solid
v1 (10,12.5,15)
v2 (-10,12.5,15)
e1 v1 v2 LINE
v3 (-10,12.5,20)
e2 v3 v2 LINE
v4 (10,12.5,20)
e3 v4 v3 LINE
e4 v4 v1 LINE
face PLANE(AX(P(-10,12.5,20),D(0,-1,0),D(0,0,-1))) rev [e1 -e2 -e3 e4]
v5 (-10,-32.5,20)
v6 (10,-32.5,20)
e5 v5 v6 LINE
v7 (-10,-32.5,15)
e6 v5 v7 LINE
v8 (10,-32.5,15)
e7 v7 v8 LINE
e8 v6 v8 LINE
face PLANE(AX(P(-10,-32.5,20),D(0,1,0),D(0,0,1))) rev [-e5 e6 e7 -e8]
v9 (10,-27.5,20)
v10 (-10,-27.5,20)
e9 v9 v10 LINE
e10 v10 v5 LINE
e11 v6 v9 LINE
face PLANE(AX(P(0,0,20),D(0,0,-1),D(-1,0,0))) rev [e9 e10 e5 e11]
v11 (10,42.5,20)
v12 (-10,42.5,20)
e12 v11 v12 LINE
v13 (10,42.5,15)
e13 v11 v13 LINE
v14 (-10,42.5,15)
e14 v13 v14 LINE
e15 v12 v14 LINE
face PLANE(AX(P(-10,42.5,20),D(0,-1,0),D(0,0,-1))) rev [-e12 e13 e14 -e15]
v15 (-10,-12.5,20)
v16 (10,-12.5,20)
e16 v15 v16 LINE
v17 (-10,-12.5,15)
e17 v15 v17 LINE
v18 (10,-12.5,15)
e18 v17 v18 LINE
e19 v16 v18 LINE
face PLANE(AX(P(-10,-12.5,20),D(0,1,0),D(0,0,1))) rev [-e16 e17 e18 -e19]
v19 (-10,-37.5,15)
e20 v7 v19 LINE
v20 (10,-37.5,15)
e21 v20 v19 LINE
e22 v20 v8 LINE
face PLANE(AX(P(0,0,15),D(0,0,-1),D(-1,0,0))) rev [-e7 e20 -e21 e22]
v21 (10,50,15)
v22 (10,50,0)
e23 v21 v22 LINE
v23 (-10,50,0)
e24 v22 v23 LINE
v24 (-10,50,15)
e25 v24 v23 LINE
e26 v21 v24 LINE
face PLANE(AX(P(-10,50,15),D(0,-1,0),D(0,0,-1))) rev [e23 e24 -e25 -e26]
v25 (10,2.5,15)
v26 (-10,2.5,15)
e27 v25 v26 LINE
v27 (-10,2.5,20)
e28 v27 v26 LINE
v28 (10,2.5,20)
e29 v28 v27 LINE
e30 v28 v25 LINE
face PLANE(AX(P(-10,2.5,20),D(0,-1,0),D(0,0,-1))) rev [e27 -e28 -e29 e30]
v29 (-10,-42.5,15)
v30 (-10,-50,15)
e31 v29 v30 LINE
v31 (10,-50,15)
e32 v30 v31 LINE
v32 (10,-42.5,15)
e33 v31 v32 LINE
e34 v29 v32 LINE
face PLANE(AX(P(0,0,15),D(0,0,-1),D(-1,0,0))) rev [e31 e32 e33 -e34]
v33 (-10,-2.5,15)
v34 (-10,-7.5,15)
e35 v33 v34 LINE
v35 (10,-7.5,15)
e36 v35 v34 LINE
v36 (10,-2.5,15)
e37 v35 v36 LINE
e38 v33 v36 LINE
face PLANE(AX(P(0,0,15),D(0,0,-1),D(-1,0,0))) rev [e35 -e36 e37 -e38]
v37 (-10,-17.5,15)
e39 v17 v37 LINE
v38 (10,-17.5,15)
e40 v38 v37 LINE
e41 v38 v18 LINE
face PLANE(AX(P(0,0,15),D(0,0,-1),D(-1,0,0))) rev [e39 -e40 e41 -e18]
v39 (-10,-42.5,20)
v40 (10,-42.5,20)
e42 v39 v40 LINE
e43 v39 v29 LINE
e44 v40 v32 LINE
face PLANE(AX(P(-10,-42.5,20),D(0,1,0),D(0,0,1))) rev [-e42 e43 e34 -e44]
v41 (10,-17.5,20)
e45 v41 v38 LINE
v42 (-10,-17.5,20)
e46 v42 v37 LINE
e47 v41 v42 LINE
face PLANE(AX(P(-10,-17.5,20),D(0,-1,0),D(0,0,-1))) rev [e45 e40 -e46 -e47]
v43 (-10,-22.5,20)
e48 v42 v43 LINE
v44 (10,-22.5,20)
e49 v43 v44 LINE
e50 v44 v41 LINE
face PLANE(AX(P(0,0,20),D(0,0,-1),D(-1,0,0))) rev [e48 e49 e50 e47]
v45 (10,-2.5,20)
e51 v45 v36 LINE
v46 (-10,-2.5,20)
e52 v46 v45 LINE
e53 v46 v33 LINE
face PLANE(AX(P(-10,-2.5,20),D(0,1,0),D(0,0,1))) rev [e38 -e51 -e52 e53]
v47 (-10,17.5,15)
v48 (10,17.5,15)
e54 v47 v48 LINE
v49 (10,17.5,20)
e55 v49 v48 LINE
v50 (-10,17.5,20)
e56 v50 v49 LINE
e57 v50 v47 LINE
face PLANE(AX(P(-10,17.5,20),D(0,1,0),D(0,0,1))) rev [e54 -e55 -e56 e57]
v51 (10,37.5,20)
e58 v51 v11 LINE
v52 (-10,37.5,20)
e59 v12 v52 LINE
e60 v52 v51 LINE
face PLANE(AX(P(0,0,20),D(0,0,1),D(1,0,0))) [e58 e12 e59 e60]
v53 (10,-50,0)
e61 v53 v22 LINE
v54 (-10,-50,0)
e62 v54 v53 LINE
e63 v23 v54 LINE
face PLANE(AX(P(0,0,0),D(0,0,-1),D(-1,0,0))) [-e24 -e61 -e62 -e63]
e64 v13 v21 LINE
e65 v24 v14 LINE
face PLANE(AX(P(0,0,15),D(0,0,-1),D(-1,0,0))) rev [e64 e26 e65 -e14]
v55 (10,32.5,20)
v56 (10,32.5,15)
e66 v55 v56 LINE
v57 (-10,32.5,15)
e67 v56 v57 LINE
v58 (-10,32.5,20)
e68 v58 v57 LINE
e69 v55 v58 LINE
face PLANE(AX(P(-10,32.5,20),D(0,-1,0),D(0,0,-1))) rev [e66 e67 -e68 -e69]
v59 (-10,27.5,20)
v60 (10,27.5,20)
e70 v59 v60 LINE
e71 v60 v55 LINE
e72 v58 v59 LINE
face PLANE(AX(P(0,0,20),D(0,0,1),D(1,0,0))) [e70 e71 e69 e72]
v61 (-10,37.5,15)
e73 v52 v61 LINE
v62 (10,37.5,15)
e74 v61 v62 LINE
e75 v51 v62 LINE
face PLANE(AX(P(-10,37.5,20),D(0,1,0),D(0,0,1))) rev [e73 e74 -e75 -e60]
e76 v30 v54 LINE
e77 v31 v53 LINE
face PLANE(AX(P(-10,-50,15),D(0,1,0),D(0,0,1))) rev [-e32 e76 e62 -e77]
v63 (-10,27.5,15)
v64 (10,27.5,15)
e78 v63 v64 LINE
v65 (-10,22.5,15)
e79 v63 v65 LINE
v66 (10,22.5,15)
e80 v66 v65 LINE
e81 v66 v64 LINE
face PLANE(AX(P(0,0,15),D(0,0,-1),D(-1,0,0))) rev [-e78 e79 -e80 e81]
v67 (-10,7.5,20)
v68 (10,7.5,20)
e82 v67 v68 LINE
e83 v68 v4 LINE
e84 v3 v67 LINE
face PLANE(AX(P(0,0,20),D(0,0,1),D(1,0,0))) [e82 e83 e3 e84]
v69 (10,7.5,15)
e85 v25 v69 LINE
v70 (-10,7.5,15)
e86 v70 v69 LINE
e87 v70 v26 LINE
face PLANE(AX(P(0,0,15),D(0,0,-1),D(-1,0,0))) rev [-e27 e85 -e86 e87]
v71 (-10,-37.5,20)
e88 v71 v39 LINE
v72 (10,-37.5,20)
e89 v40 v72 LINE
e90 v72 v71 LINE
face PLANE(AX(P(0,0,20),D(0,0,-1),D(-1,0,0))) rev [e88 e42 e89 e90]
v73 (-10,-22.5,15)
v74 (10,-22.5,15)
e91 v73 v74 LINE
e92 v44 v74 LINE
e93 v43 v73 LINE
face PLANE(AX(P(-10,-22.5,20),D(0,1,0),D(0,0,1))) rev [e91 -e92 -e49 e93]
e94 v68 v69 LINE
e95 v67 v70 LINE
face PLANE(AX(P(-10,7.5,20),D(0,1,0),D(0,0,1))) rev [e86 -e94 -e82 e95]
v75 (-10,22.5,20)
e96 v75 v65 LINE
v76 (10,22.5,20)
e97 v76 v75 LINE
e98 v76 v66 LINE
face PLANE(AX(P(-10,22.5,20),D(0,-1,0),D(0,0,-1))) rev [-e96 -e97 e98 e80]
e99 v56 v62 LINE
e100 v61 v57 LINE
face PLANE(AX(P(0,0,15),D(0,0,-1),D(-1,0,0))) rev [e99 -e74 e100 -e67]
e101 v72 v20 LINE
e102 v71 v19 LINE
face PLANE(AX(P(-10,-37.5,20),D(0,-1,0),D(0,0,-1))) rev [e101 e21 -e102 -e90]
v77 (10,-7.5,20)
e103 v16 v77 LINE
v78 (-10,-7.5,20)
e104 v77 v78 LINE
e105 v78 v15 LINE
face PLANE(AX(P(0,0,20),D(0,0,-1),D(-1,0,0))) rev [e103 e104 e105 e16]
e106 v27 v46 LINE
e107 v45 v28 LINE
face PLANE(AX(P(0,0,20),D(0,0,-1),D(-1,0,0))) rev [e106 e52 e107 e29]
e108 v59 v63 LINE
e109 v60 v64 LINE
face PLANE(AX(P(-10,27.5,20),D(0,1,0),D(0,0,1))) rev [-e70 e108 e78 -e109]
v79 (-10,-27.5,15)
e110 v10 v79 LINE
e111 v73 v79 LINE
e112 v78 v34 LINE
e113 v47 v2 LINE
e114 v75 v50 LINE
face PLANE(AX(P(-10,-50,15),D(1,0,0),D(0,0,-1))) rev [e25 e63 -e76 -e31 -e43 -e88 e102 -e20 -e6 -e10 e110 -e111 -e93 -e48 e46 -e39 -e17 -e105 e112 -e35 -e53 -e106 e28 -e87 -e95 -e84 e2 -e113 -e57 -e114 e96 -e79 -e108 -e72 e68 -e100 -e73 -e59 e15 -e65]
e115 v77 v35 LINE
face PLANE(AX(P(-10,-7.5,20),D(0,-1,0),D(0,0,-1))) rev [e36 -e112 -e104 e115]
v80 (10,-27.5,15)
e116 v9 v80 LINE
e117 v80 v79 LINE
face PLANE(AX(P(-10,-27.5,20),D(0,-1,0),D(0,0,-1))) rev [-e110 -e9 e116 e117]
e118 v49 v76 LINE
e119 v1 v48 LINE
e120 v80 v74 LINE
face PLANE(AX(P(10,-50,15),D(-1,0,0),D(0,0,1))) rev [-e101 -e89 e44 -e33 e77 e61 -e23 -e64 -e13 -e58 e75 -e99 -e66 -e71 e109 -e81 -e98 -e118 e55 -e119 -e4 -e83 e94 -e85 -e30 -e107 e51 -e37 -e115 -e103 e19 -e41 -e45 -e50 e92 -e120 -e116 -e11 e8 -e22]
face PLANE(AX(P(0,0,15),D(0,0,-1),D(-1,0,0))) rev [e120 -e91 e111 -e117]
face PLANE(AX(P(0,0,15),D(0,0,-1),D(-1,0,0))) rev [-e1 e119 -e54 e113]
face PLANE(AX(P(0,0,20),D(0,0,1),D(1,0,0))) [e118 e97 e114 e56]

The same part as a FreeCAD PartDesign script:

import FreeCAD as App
import Part
import Sketcher
from FreeCAD import Vector

doc = App.newDocument("Part")
params = doc.addObject("Spreadsheet::Sheet", "Params")
for row, (alias, value) in enumerate([
    ("sketch1_width", "20 mm"),
    ("sketch1_height", "100 mm"),
    ("pad1_length", "15 mm"),
    ("sketch2_width", "20 mm"),
    ("sketch2_height", "5 mm"),
    ("pad2_length", "5 mm"),
], start=1):
    params.set(f"A{row}", alias)
    params.set(f"B{row}", "=" + value)
    params.setAlias(f"B{row}", alias)

body = doc.addObject("PartDesign::Body", "Body")

# Sketch on XY plane
sketch1 = body.newObject("Sketcher::SketchObject", "Sketch")
sketch1.AttachmentSupport = (doc.getObject("XY_Plane"), [""])
sketch1.MapMode = "FlatFace"
sketch1.addGeometry(Part.LineSegment(Vector(-10, 50, 0), Vector(-10, -50, 0)), False)
sketch1.addGeometry(Part.LineSegment(Vector(-10, -50, 0), Vector(10, -50, 0)), False)
sketch1.addGeometry(Part.LineSegment(Vector(10, -50, 0), Vector(10, 50, 0)), False)
sketch1.addGeometry(Part.LineSegment(Vector(10, 50, 0), Vector(-10, 50, 0)), False)
sketch1.addConstraint(Sketcher.Constraint("Coincident", 0, 2, 1, 1))
sketch1.addConstraint(Sketcher.Constraint("Coincident", 1, 2, 2, 1))
sketch1.addConstraint(Sketcher.Constraint("Coincident", 2, 2, 3, 1))
sketch1.addConstraint(Sketcher.Constraint("Coincident", 3, 2, 0, 1))
sketch1.addConstraint(Sketcher.Constraint("Vertical", 0))
sketch1.addConstraint(Sketcher.Constraint("Horizontal", 1))
sketch1.addConstraint(Sketcher.Constraint("Vertical", 2))
sketch1.addConstraint(Sketcher.Constraint("Horizontal", 3))
sketch1.addConstraint(Sketcher.Constraint("Symmetric", 0, 2, 2, 2, -1, 1))
sketch1.addConstraint(Sketcher.Constraint("DistanceX", 1, 1, 1, 2, 20.0))
sketch1.addConstraint(Sketcher.Constraint("DistanceY", 0, 2, 0, 1, 100.0))
sketch1.setExpression("Constraints[9]", "Params.sketch1_width")
sketch1.setExpression("Constraints[10]", "Params.sketch1_height")
pad1 = body.newObject("PartDesign::Pad", "Pad")
pad1.Profile = sketch1
pad1.setExpression("Length", "Params.pad1_length")

# Sketch on XY plane
sketch2 = body.newObject("Sketcher::SketchObject", "Sketch001")
sketch2.AttachmentSupport = (doc.getObject("XY_Plane"), [""])
sketch2.MapMode = "FlatFace"
sketch2.AttachmentOffset = App.Placement(Vector(0, 0, 15), App.Rotation())
sketch2.addGeometry(Part.LineSegment(Vector(-10, 2, 0), Vector(-10, -2, 0)), False)
sketch2.addGeometry(Part.LineSegment(Vector(-10, -2, 0), Vector(10, -2, 0)), False)
sketch2.addGeometry(Part.LineSegment(Vector(10, -2, 0), Vector(10, 2, 0)), False)
sketch2.addGeometry(Part.LineSegment(Vector(10, 2, 0), Vector(-10, 2, 0)), False)
sketch2.addGeometry(Part.LineSegment(Vector(-10, -8, 0), Vector(-10, -12, 0)), False)
sketch2.addGeometry(Part.LineSegment(Vector(-10, -12, 0), Vector(10, -12, 0)), False)
sketch2.addGeometry(Part.LineSegment(Vector(10, -12, 0), Vector(10, -8, 0)), False)
sketch2.addGeometry(Part.LineSegment(Vector(10, -8, 0), Vector(-10, -8, 0)), False)
sketch2.addGeometry(Part.LineSegment(Vector(-10, -18, 0), Vector(-10, -22, 0)), False)
sketch2.addGeometry(Part.LineSegment(Vector(-10, -22, 0), Vector(10, -22, 0)), False)
sketch2.addGeometry(Part.LineSegment(Vector(10, -22, 0), Vector(10, -18, 0)), False)
sketch2.addGeometry(Part.LineSegment(Vector(10, -18, 0), Vector(-10, -18, 0)), False)
sketch2.addGeometry(Part.LineSegment(Vector(-10, -28, 0), Vector(-10, -32, 0)), False)
sketch2.addGeometry(Part.LineSegment(Vector(-10, -32, 0), Vector(10, -32, 0)), False)
sketch2.addGeometry(Part.LineSegment(Vector(10, -32, 0), Vector(10, -28, 0)), False)
sketch2.addGeometry(Part.LineSegment(Vector(10, -28, 0), Vector(-10, -28, 0)), False)
sketch2.addGeometry(Part.LineSegment(Vector(-10, -38, 0), Vector(-10, -42, 0)), False)
sketch2.addGeometry(Part.LineSegment(Vector(-10, -42, 0), Vector(10, -42, 0)), False)
sketch2.addGeometry(Part.LineSegment(Vector(10, -42, 0), Vector(10, -38, 0)), False)
sketch2.addGeometry(Part.LineSegment(Vector(10, -38, 0), Vector(-10, -38, 0)), False)
sketch2.addGeometry(Part.LineSegment(Vector(-10, 12, 0), Vector(-10, 8, 0)), False)
sketch2.addGeometry(Part.LineSegment(Vector(-10, 8, 0), Vector(10, 8, 0)), False)
sketch2.addGeometry(Part.LineSegment(Vector(10, 8, 0), Vector(10, 12, 0)), False)
sketch2.addGeometry(Part.LineSegment(Vector(10, 12, 0), Vector(-10, 12, 0)), False)
sketch2.addGeometry(Part.LineSegment(Vector(-10, 22, 0), Vector(-10, 18, 0)), False)
sketch2.addGeometry(Part.LineSegment(Vector(-10, 18, 0), Vector(10, 18, 0)), False)
sketch2.addGeometry(Part.LineSegment(Vector(10, 18, 0), Vector(10, 22, 0)), False)
sketch2.addGeometry(Part.LineSegment(Vector(10, 22, 0), Vector(-10, 22, 0)), False)
sketch2.addGeometry(Part.LineSegment(Vector(-10, 32, 0), Vector(-10, 28, 0)), False)
sketch2.addGeometry(Part.LineSegment(Vector(-10, 28, 0), Vector(10, 28, 0)), False)
sketch2.addGeometry(Part.LineSegment(Vector(10, 28, 0), Vector(10, 32, 0)), False)
sketch2.addGeometry(Part.LineSegment(Vector(10, 32, 0), Vector(-10, 32, 0)), False)
sketch2.addGeometry(Part.LineSegment(Vector(-10, 42, 0), Vector(-10, 38, 0)), False)
sketch2.addGeometry(Part.LineSegment(Vector(-10, 38, 0), Vector(10, 38, 0)), False)
sketch2.addGeometry(Part.LineSegment(Vector(10, 38, 0), Vector(10, 42, 0)), False)
sketch2.addGeometry(Part.LineSegment(Vector(10, 42, 0), Vector(-10, 42, 0)), False)
sketch2.addConstraint(Sketcher.Constraint("Coincident", 0, 2, 1, 1))
sketch2.addConstraint(Sketcher.Constraint("Coincident", 1, 2, 2, 1))
sketch2.addConstraint(Sketcher.Constraint("Coincident", 2, 2, 3, 1))
sketch2.addConstraint(Sketcher.Constraint("Coincident", 3, 2, 0, 1))
sketch2.addConstraint(Sketcher.Constraint("Coincident", 4, 2, 5, 1))
sketch2.addConstraint(Sketcher.Constraint("Coincident", 5, 2, 6, 1))
sketch2.addConstraint(Sketcher.Constraint("Coincident", 6, 2, 7, 1))
sketch2.addConstraint(Sketcher.Constraint("Coincident", 7, 2, 4, 1))
sketch2.addConstraint(Sketcher.Constraint("Coincident", 8, 2, 9, 1))
sketch2.addConstraint(Sketcher.Constraint("Coincident", 9, 2, 10, 1))
sketch2.addConstraint(Sketcher.Constraint("Coincident", 10, 2, 11, 1))
sketch2.addConstraint(Sketcher.Constraint("Coincident", 11, 2, 8, 1))
sketch2.addConstraint(Sketcher.Constraint("Coincident", 12, 2, 13, 1))
sketch2.addConstraint(Sketcher.Constraint("Coincident", 13, 2, 14, 1))
sketch2.addConstraint(Sketcher.Constraint("Coincident", 14, 2, 15, 1))
sketch2.addConstraint(Sketcher.Constraint("Coincident", 15, 2, 12, 1))
sketch2.addConstraint(Sketcher.Constraint("Coincident", 16, 2, 17, 1))
sketch2.addConstraint(Sketcher.Constraint("Coincident", 17, 2, 18, 1))
sketch2.addConstraint(Sketcher.Constraint("Coincident", 18, 2, 19, 1))
sketch2.addConstraint(Sketcher.Constraint("Coincident", 19, 2, 16, 1))
sketch2.addConstraint(Sketcher.Constraint("Coincident", 20, 2, 21, 1))
sketch2.addConstraint(Sketcher.Constraint("Coincident", 21, 2, 22, 1))
sketch2.addConstraint(Sketcher.Constraint("Coincident", 22, 2, 23, 1))
sketch2.addConstraint(Sketcher.Constraint("Coincident", 23, 2, 20, 1))
sketch2.addConstraint(Sketcher.Constraint("Coincident", 24, 2, 25, 1))
sketch2.addConstraint(Sketcher.Constraint("Coincident", 25, 2, 26, 1))
sketch2.addConstraint(Sketcher.Constraint("Coincident", 26, 2, 27, 1))
sketch2.addConstraint(Sketcher.Constraint("Coincident", 27, 2, 24, 1))
sketch2.addConstraint(Sketcher.Constraint("Coincident", 28, 2, 29, 1))
sketch2.addConstraint(Sketcher.Constraint("Coincident", 29, 2, 30, 1))
sketch2.addConstraint(Sketcher.Constraint("Coincident", 30, 2, 31, 1))
sketch2.addConstraint(Sketcher.Constraint("Coincident", 31, 2, 28, 1))
sketch2.addConstraint(Sketcher.Constraint("Coincident", 32, 2, 33, 1))
sketch2.addConstraint(Sketcher.Constraint("Coincident", 33, 2, 34, 1))
sketch2.addConstraint(Sketcher.Constraint("Coincident", 34, 2, 35, 1))
sketch2.addConstraint(Sketcher.Constraint("Coincident", 35, 2, 32, 1))
sketch2.addConstraint(Sketcher.Constraint("Vertical", 0))
sketch2.addConstraint(Sketcher.Constraint("Horizontal", 1))
sketch2.addConstraint(Sketcher.Constraint("Vertical", 2))
sketch2.addConstraint(Sketcher.Constraint("Horizontal", 3))
sketch2.addConstraint(Sketcher.Constraint("Vertical", 4))
sketch2.addConstraint(Sketcher.Constraint("Horizontal", 5))
sketch2.addConstraint(Sketcher.Constraint("Vertical", 6))
sketch2.addConstraint(Sketcher.Constraint("Horizontal", 7))
sketch2.addConstraint(Sketcher.Constraint("Vertical", 8))
sketch2.addConstraint(Sketcher.Constraint("Horizontal", 9))
sketch2.addConstraint(Sketcher.Constraint("Vertical", 10))
sketch2.addConstraint(Sketcher.Constraint("Horizontal", 11))
sketch2.addConstraint(Sketcher.Constraint("Vertical", 12))
sketch2.addConstraint(Sketcher.Constraint("Horizontal", 13))
sketch2.addConstraint(Sketcher.Constraint("Vertical", 14))
sketch2.addConstraint(Sketcher.Constraint("Horizontal", 15))
sketch2.addConstraint(Sketcher.Constraint("Vertical", 16))
sketch2.addConstraint(Sketcher.Constraint("Horizontal", 17))
sketch2.addConstraint(Sketcher.Constraint("Vertical", 18))
sketch2.addConstraint(Sketcher.Constraint("Horizontal", 19))
sketch2.addConstraint(Sketcher.Constraint("Vertical", 20))
sketch2.addConstraint(Sketcher.Constraint("Horizontal", 21))
sketch2.addConstraint(Sketcher.Constraint("Vertical", 22))
sketch2.addConstraint(Sketcher.Constraint("Horizontal", 23))
sketch2.addConstraint(Sketcher.Constraint("Vertical", 24))
sketch2.addConstraint(Sketcher.Constraint("Horizontal", 25))
sketch2.addConstraint(Sketcher.Constraint("Vertical", 26))
sketch2.addConstraint(Sketcher.Constraint("Horizontal", 27))
sketch2.addConstraint(Sketcher.Constraint("Vertical", 28))
sketch2.addConstraint(Sketcher.Constraint("Horizontal", 29))
sketch2.addConstraint(Sketcher.Constraint("Vertical", 30))
sketch2.addConstraint(Sketcher.Constraint("Horizontal", 31))
sketch2.addConstraint(Sketcher.Constraint("Vertical", 32))
sketch2.addConstraint(Sketcher.Constraint("Horizontal", 33))
sketch2.addConstraint(Sketcher.Constraint("Vertical", 34))
sketch2.addConstraint(Sketcher.Constraint("Horizontal", 35))
sketch2.addConstraint(Sketcher.Constraint("Symmetric", 0, 2, 2, 2, -1, 1))
sketch2.addConstraint(Sketcher.Constraint("Symmetric", 6, 2, 20, 2, -1, 1))
sketch2.addConstraint(Sketcher.Constraint("Symmetric", 4, 2, 22, 2, -1, 1))
sketch2.addConstraint(Sketcher.Constraint("Symmetric", 10, 2, 24, 2, -1, 1))
sketch2.addConstraint(Sketcher.Constraint("Symmetric", 8, 2, 26, 2, -1, 1))
sketch2.addConstraint(Sketcher.Constraint("Symmetric", 14, 2, 28, 2, -1, 1))
sketch2.addConstraint(Sketcher.Constraint("Symmetric", 12, 2, 30, 2, -1, 1))
sketch2.addConstraint(Sketcher.Constraint("Symmetric", 18, 2, 32, 2, -1, 1))
sketch2.addConstraint(Sketcher.Constraint("Symmetric", 16, 2, 34, 2, -1, 1))
sketch2.addConstraint(Sketcher.Constraint("Vertical", 3, 2, 4, 2))
sketch2.addConstraint(Sketcher.Constraint("Vertical", 2, 2, 5, 2))
sketch2.addConstraint(Sketcher.Constraint("Vertical", 7, 2, 8, 2))
sketch2.addConstraint(Sketcher.Constraint("Vertical", 6, 2, 9, 2))
sketch2.addConstraint(Sketcher.Constraint("Vertical", 11, 2, 12, 2))
sketch2.addConstraint(Sketcher.Constraint("Vertical", 10, 2, 13, 2))
sketch2.addConstraint(Sketcher.Constraint("Vertical", 15, 2, 16, 2))
sketch2.addConstraint(Sketcher.Constraint("Vertical", 14, 2, 17, 2))
sketch2.addConstraint(Sketcher.Constraint("Equal", 2, 4))
sketch2.addConstraint(Sketcher.Constraint("Equal", 6, 8))
sketch2.addConstraint(Sketcher.Constraint("Equal", 10, 12))
sketch2.addConstraint(Sketcher.Constraint("Equal", 14, 16))
sketch2.addConstraint(Sketcher.Constraint("DistanceX", 1, 1, 1, 2, 20.0))
sketch2.addConstraint(Sketcher.Constraint("DistanceY", 0, 2, 0, 1, 5.0))
sketch2.addConstraint(Sketcher.Constraint("DistanceY", 4, 2, 0, 2, 10.0))
sketch2.addConstraint(Sketcher.Constraint("DistanceY", 8, 2, 4, 2, 10.0))
sketch2.addConstraint(Sketcher.Constraint("DistanceY", 12, 2, 8, 2, 10.0))
sketch2.addConstraint(Sketcher.Constraint("DistanceY", 16, 2, 12, 2, 10.0))
sketch2.setExpression("Constraints[93]", "Params.sketch2_width")
sketch2.setExpression("Constraints[94]", "Params.sketch2_height")
pad2 = body.newObject("PartDesign::Pad", "Pad001")
pad2.Profile = sketch2
pad2.setExpression("Length", "Params.pad2_length")

doc.recompute()
